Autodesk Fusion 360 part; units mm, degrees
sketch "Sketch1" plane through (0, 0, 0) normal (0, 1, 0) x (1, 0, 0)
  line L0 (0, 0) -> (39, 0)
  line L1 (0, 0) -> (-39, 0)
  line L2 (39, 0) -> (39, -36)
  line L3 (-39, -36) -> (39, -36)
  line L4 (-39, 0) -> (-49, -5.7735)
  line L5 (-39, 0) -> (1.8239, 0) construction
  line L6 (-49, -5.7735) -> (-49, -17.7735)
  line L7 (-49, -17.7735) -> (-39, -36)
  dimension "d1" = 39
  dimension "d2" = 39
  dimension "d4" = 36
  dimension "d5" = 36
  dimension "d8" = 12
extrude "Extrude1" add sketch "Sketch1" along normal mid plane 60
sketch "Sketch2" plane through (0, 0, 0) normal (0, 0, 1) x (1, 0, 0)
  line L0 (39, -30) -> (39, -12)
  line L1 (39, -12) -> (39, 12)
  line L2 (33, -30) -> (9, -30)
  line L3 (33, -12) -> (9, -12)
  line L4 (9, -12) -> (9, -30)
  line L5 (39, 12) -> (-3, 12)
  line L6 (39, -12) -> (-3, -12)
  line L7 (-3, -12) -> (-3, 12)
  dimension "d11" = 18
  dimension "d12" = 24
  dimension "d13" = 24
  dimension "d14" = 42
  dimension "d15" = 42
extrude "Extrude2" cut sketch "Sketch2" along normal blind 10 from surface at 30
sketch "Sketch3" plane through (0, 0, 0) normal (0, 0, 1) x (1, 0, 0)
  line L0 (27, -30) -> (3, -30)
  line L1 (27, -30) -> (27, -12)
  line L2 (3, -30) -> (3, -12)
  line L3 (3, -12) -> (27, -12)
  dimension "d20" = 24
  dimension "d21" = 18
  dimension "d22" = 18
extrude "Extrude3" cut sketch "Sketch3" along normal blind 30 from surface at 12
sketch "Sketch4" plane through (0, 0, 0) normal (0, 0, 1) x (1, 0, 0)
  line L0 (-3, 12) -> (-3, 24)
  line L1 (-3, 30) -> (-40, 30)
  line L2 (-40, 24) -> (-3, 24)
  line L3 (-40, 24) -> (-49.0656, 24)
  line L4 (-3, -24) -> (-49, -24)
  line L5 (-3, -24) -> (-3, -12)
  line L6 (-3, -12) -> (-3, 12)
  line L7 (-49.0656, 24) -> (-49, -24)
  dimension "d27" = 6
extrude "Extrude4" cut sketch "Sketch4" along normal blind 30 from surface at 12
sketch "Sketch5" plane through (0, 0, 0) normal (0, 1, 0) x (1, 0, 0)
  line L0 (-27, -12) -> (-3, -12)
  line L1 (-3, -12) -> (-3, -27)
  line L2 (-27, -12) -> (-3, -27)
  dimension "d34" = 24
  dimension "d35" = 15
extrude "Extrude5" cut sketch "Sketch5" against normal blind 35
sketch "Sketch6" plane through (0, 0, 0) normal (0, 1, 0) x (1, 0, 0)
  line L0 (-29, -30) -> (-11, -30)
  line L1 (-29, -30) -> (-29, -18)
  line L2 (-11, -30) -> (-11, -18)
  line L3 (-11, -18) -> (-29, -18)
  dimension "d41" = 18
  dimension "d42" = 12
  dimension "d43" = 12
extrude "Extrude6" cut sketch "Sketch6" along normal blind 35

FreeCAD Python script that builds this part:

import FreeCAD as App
import Part
import Sketcher
Q = App.Units.Quantity

doc = App.newDocument("Part")
body = doc.addObject("PartDesign::Body", "Body")

# Sketch on XZ plane
sketch1 = body.newObject("Sketcher::SketchObject", "Sketch")
sketch1.AttachmentSupport = (doc.getObject("XZ_Plane"), [""])
sketch1.MapMode = "FlatFace"
sketch1.addGeometry(Part.LineSegment(App.Vector(39, 0, 0), App.Vector(-39, 0, 0)), False)
sketch1.addGeometry(Part.LineSegment(App.Vector(-39, 0, 0), App.Vector(-49, 6, 0)), False)
sketch1.addGeometry(Part.LineSegment(App.Vector(-49, 6, 0), App.Vector(-49, 18, 0)), False)
sketch1.addGeometry(Part.LineSegment(App.Vector(-49, 18, 0), App.Vector(-39, 36, 0)), False)
sketch1.addGeometry(Part.LineSegment(App.Vector(-39, 36, 0), App.Vector(39, 36, 0)), False)
sketch1.addGeometry(Part.LineSegment(App.Vector(39, 36, 0), App.Vector(39, 0, 0)), False)
sketch1.addConstraint(Sketcher.Constraint("Coincident", 0, 2, 1, 1))
sketch1.addConstraint(Sketcher.Constraint("Coincident", 1, 2, 2, 1))
sketch1.addConstraint(Sketcher.Constraint("Coincident", 2, 2, 3, 1))
sketch1.addConstraint(Sketcher.Constraint("Coincident", 3, 2, 4, 1))
sketch1.addConstraint(Sketcher.Constraint("Coincident", 4, 2, 5, 1))
sketch1.addConstraint(Sketcher.Constraint("Coincident", 5, 2, 0, 1))
sketch1.addConstraint(Sketcher.Constraint("Horizontal", 0))
sketch1.addConstraint(Sketcher.Constraint("Vertical", 2))
sketch1.addConstraint(Sketcher.Constraint("Horizontal", 4))
sketch1.addConstraint(Sketcher.Constraint("Vertical", 5))
sketch1.addConstraint(Sketcher.Constraint("Symmetric", 0, 2, 5, 2, -1, 1))
sketch1.addConstraint(Sketcher.Constraint("Vertical", 0, 2, 3, 2))
sketch1.addConstraint(Sketcher.Constraint("DistanceY", 2, 1, 2, 2, 12.0))
sketch1.addConstraint(Sketcher.Constraint("DistanceY", 5, 2, 5, 1, 36.0))
sketch1.addConstraint(Sketcher.Constraint("DistanceX", 0, 2, -1, 1, 39.0))
sketch1.addConstraint(Sketcher.Constraint("Angle", 1, Q("150 deg")))
sketch1.addConstraint(Sketcher.Constraint("DistanceX", 1, 2, -1, 1, 49.0))
pad1 = body.newObject("PartDesign::Pad", "Pad")
pad1.Profile = sketch1
pad1.Length = 60
pad1.Midplane = True

# Sketch on XY plane
sketch2 = body.newObject("Sketcher::SketchObject", "Sketch001")
sketch2.AttachmentSupport = (doc.getObject("XY_Plane"), [""])
sketch2.MapMode = "FlatFace"
sketch2.AttachmentOffset = App.Placement(App.Vector(0, 0, 30), App.Rotation())
sketch2.addGeometry(Part.LineSegment(App.Vector(-3, -12, 0), App.Vector(39, -12, 0)), False)
sketch2.addGeometry(Part.LineSegment(App.Vector(39, -12, 0), App.Vector(39, 12, 0)), False)
sketch2.addGeometry(Part.LineSegment(App.Vector(39, 12, 0), App.Vector(-3, 12, 0)), False)
sketch2.addGeometry(Part.LineSegment(App.Vector(-3, 12, 0), App.Vector(-3, -12, 0)), False)
sketch2.addConstraint(Sketcher.Constraint("Coincident", 0, 2, 1, 1))
sketch2.addConstraint(Sketcher.Constraint("Coincident", 1, 2, 2, 1))
sketch2.addConstraint(Sketcher.Constraint("Coincident", 2, 2, 3, 1))
sketch2.addConstraint(Sketcher.Constraint("Coincident", 3, 2, 0, 1))
sketch2.addConstraint(Sketcher.Constraint("Horizontal", 0))
sketch2.addConstraint(Sketcher.Constraint("Vertical", 1))
sketch2.addConstraint(Sketcher.Constraint("Horizontal", 2))
sketch2.addConstraint(Sketcher.Constraint("Vertical", 3))
sketch2.addConstraint(Sketcher.Constraint("DistanceX", 0, 1, 0, 2, 42.0))
sketch2.addConstraint(Sketcher.Constraint("DistanceY", 1, 1, 1, 2, 24.0))
sketch2.addConstraint(Sketcher.Constraint("DistanceX", -1, 1, 0, 2, 39.0))
sketch2.addConstraint(Sketcher.Constraint("DistanceY", 0, 2, -1, 1, 12.0))
pocket1 = body.newObject("PartDesign::Pocket", "Pocket")
pocket1.Profile = sketch2
pocket1.Length = 10
pocket1.Reversed = True

# Sketch on XY plane
sketch3 = body.newObject("Sketcher::SketchObject", "Sketch002")
sketch3.AttachmentSupport = (doc.getObject("XY_Plane"), [""])
sketch3.MapMode = "FlatFace"
sketch3.AttachmentOffset = App.Placement(App.Vector(0, 0, 12), App.Rotation())
sketch3.addGeometry(Part.LineSegment(App.Vector(3, -30, 0), App.Vector(27, -30, 0)), False)
sketch3.addGeometry(Part.LineSegment(App.Vector(27, -30, 0), App.Vector(27, -12, 0)), False)
sketch3.addGeometry(Part.LineSegment(App.Vector(27, -12, 0), App.Vector(3, -12, 0)), False)
sketch3.addGeometry(Part.LineSegment(App.Vector(3, -12, 0), App.Vector(3, -30, 0)), False)
sketch3.addConstraint(Sketcher.Constraint("Coincident", 0, 2, 1, 1))
sketch3.addConstraint(Sketcher.Constraint("Coincident", 1, 2, 2, 1))
sketch3.addConstraint(Sketcher.Constraint("Coincident", 2, 2, 3, 1))
sketch3.addConstraint(Sketcher.Constraint("Coincident", 3, 2, 0, 1))
sketch3.addConstraint(Sketcher.Constraint("Horizontal", 0))
sketch3.addConstraint(Sketcher.Constraint("Vertical", 1))
sketch3.addConstraint(Sketcher.Constraint("Horizontal", 2))
sketch3.addConstraint(Sketcher.Constraint("Vertical", 3))
sketch3.addConstraint(Sketcher.Constraint("DistanceX", 0, 1, 0, 2, 24.0))
sketch3.addConstraint(Sketcher.Constraint("DistanceY", 1, 1, 1, 2, 18.0))
sketch3.addConstraint(Sketcher.Constraint("DistanceX", -1, 1, 0, 2, 27.0))
sketch3.addConstraint(Sketcher.Constraint("DistanceY", 0, 2, -1, 1, 30.0))
pocket2 = body.newObject("PartDesign::Pocket", "Pocket001")
pocket2.Profile = sketch3
pocket2.Length = 30
pocket2.Reversed = True

# Sketch on XY plane
sketch4 = body.newObject("Sketcher::SketchObject", "Sketch003")
sketch4.AttachmentSupport = (doc.getObject("XY_Plane"), [""])
sketch4.MapMode = "FlatFace"
sketch4.AttachmentOffset = App.Placement(App.Vector(0, 0, 12), App.Rotation())
sketch4.addGeometry(Part.LineSegment(App.Vector(-3, -24, 0), App.Vector(-3, 24, 0)), False)
sketch4.addGeometry(Part.LineSegment(App.Vector(-3, 24, 0), App.Vector(-49, 24, 0)), False)
sketch4.addGeometry(Part.LineSegment(App.Vector(-49, 24, 0), App.Vector(-49, -24, 0)), False)
sketch4.addGeometry(Part.LineSegment(App.Vector(-49, -24, 0), App.Vector(-3, -24, 0)), False)
sketch4.addConstraint(Sketcher.Constraint("Coincident", 0, 2, 1, 1))
sketch4.addConstraint(Sketcher.Constraint("Coincident", 1, 2, 2, 1))
sketch4.addConstraint(Sketcher.Constraint("Coincident", 2, 2, 3, 1))
sketch4.addConstraint(Sketcher.Constraint("Coincident", 3, 2, 0, 1))
sketch4.addConstraint(Sketcher.Constraint("Vertical", 0))
sketch4.addConstraint(Sketcher.Constraint("Horizontal", 1))
sketch4.addConstraint(Sketcher.Constraint("Horizontal", 3))
sketch4.addConstraint(Sketcher.Constraint("DistanceX", 3, 1, 3, 2, 46.0))
sketch4.addConstraint(Sketcher.Constraint("DistanceY", 0, 1, 0, 2, 48.0))
sketch4.addConstraint(Sketcher.Constraint("DistanceX", 0, 2, -1, 1, 3.0))
sketch4.addConstraint(Sketcher.Constraint("DistanceY", -1, 1, 0, 2, 24.0))
sketch4.addConstraint(Sketcher.Constraint("DistanceX", 1, 2, 1, 1, 46.0656))
pocket3 = body.newObject("PartDesign::Pocket", "Pocket002")
pocket3.Profile = sketch4
pocket3.Length = 30
pocket3.Reversed = True

# Sketch on XZ plane
sketch5 = body.newObject("Sketcher::SketchObject", "Sketch004")
sketch5.AttachmentSupport = (doc.getObject("XZ_Plane"), [""])
sketch5.MapMode = "FlatFace"
sketch5.addGeometry(Part.LineSegment(App.Vector(-3, 12, 0), App.Vector(-27, 12, 0)), False)
sketch5.addGeometry(Part.LineSegment(App.Vector(-27, 12, 0), App.Vector(-3, 27, 0)), False)
sketch5.addGeometry(Part.LineSegment(App.Vector(-3, 27, 0), App.Vector(-3, 12, 0)), False)
sketch5.addConstraint(Sketcher.Constraint("Coincident", 0, 2, 1, 1))
sketch5.addConstraint(Sketcher.Constraint("Coincident", 1, 2, 2, 1))
sketch5.addConstraint(Sketcher.Constraint("Coincident", 2, 2, 0, 1))
sketch5.addConstraint(Sketcher.Constraint("Horizontal", 0))
sketch5.addConstraint(Sketcher.Constraint("Vertical", 2))
sketch5.addConstraint(Sketcher.Constraint("DistanceX", 0, 2, 0, 1, 24.0))
sketch5.addConstraint(Sketcher.Constraint("DistanceY", 2, 2, 2, 1, 15.0))
sketch5.addConstraint(Sketcher.Constraint("DistanceX", 0, 2, -1, 1, 27.0))
sketch5.addConstraint(Sketcher.Constraint("DistanceY", -1, 1, 0, 2, 12.0))
pocket4 = body.newObject("PartDesign::Pocket", "Pocket003")
pocket4.Profile = sketch5
pocket4.Length = 35
pocket4.Reversed = True

# Sketch on XZ plane
sketch6 = body.newObject("Sketcher::SketchObject", "Sketch005")
sketch6.AttachmentSupport = (doc.getObject("XZ_Plane"), [""])
sketch6.MapMode = "FlatFace"
sketch6.addGeometry(Part.LineSegment(App.Vector(-29, 18, 0), App.Vector(-29, 30, 0)), False)
sketch6.addGeometry(Part.LineSegment(App.Vector(-29, 30, 0), App.Vector(-11, 30, 0)), False)
sketch6.addGeometry(Part.LineSegment(App.Vector(-11, 30, 0), App.Vector(-11, 18, 0)), False)
sketch6.addGeometry(Part.LineSegment(App.Vector(-11, 18, 0), App.Vector(-29, 18, 0)), False)
sketch6.addConstraint(Sketcher.Constraint("Coincident", 0, 2, 1, 1))
sketch6.addConstraint(Sketcher.Constraint("Coincident", 1, 2, 2, 1))
sketch6.addConstraint(Sketcher.Constraint("Coincident", 2, 2, 3, 1))
sketch6.addConstraint(Sketcher.Constraint("Coincident", 3, 2, 0, 1))
sketch6.addConstraint(Sketcher.Constraint("Vertical", 0))
sketch6.addConstraint(Sketcher.Constraint("Horizontal", 1))
sketch6.addConstraint(Sketcher.Constraint("Vertical", 2))
sketch6.addConstraint(Sketcher.Constraint("Horizontal", 3))
sketch6.addConstraint(Sketcher.Constraint("DistanceX", 1, 1, 1, 2, 18.0))
sketch6.addConstraint(Sketcher.Constraint("DistanceY", 0, 1, 0, 2, 12.0))
sketch6.addConstraint(Sketcher.Constraint("DistanceY", -1, 1, 2, 2, 18.0))
sketch6.addConstraint(Sketcher.Constraint("DistanceX", 0, 2, -1, 1, 29.0))
pocket5 = body.newObject("PartDesign::Pocket", "Pocket004")
pocket5.Profile = sketch6
pocket5.Length = 35

doc.recompute()
